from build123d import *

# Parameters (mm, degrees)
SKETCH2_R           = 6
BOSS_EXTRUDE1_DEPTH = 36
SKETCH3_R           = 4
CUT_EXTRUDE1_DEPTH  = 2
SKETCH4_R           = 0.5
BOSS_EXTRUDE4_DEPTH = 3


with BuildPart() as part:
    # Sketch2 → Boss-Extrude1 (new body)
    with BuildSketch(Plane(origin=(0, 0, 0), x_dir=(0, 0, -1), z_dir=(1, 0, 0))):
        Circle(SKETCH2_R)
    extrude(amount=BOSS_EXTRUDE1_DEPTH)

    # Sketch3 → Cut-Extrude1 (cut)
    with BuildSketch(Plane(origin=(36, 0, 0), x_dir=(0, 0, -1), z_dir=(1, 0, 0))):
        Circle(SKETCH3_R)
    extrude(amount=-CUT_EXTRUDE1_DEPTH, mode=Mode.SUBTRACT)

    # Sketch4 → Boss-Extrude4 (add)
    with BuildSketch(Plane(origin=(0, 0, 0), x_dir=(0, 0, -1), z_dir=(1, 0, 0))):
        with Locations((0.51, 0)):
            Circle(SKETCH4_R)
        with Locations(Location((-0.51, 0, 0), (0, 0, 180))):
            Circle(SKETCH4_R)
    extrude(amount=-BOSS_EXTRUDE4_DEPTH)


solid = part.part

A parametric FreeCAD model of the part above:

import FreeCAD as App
import Part
import Sketcher

doc = App.newDocument("Part")
body = doc.addObject("PartDesign::Body", "Body")

# Sketch on YZ plane
sketch1 = body.newObject("Sketcher::SketchObject", "Sketch")
sketch1.AttachmentSupport = (doc.getObject("YZ_Plane"), [""])
sketch1.MapMode = "FlatFace"
sketch1.addGeometry(Part.Circle(App.Vector(0, 0, 0), App.Vector(0, 0, 1), 6), False)
sketch1.addConstraint([
    Sketcher.Constraint("Coincident", 0, 3, -1, 1),
    Sketcher.Constraint("Diameter", 0, 12.0),
])
pad1 = body.newObject("PartDesign::Pad", "Pad")
pad1.Profile = sketch1
pad1.Length = 36

# Sketch on YZ plane
sketch2 = body.newObject("Sketcher::SketchObject", "Sketch001")
sketch2.AttachmentSupport = (doc.getObject("YZ_Plane"), [""])
sketch2.MapMode = "FlatFace"
sketch2.AttachmentOffset = App.Placement(App.Vector(0, 0, 36), App.Rotation())
sketch2.addGeometry(Part.Circle(App.Vector(0, 0, 0), App.Vector(0, 0, 1), 4), False)
sketch2.addConstraint([
    Sketcher.Constraint("Coincident", 0, 3, -1, 1),
    Sketcher.Constraint("Diameter", 0, 8.0),
])
pocket1 = body.newObject("PartDesign::Pocket", "Pocket")
pocket1.Profile = sketch2
pocket1.Length = 2

# Sketch on YZ plane
sketch3 = body.newObject("Sketcher::SketchObject", "Sketch002")
sketch3.AttachmentSupport = (doc.getObject("YZ_Plane"), [""])
sketch3.MapMode = "FlatFace"
sketch3.addGeometry([
    Part.Circle(App.Vector(0, -0.51, 0), App.Vector(0, 0, 1), 0.5),
    Part.Circle(App.Vector(0, 0.51, 0), App.Vector(0, 0, 1), 0.5),
], False)
sketch3.addConstraint([
    Sketcher.Constraint("Equal", 0, 1),
    Sketcher.Constraint("Symmetric", 0, 3, 1, 3, -1, 1),
    Sketcher.Constraint("PointOnObject", 0, 3, -2),
    Sketcher.Constraint("Diameter", 0, 1.0),
    Sketcher.Constraint("DistanceY", 0, 3, -1, 1, 0.51),
])
pad2 = body.newObject("PartDesign::Pad", "Pad001")
pad2.Profile = sketch3
pad2.Length = 3
pad2.Reversed = True

doc.recompute()
